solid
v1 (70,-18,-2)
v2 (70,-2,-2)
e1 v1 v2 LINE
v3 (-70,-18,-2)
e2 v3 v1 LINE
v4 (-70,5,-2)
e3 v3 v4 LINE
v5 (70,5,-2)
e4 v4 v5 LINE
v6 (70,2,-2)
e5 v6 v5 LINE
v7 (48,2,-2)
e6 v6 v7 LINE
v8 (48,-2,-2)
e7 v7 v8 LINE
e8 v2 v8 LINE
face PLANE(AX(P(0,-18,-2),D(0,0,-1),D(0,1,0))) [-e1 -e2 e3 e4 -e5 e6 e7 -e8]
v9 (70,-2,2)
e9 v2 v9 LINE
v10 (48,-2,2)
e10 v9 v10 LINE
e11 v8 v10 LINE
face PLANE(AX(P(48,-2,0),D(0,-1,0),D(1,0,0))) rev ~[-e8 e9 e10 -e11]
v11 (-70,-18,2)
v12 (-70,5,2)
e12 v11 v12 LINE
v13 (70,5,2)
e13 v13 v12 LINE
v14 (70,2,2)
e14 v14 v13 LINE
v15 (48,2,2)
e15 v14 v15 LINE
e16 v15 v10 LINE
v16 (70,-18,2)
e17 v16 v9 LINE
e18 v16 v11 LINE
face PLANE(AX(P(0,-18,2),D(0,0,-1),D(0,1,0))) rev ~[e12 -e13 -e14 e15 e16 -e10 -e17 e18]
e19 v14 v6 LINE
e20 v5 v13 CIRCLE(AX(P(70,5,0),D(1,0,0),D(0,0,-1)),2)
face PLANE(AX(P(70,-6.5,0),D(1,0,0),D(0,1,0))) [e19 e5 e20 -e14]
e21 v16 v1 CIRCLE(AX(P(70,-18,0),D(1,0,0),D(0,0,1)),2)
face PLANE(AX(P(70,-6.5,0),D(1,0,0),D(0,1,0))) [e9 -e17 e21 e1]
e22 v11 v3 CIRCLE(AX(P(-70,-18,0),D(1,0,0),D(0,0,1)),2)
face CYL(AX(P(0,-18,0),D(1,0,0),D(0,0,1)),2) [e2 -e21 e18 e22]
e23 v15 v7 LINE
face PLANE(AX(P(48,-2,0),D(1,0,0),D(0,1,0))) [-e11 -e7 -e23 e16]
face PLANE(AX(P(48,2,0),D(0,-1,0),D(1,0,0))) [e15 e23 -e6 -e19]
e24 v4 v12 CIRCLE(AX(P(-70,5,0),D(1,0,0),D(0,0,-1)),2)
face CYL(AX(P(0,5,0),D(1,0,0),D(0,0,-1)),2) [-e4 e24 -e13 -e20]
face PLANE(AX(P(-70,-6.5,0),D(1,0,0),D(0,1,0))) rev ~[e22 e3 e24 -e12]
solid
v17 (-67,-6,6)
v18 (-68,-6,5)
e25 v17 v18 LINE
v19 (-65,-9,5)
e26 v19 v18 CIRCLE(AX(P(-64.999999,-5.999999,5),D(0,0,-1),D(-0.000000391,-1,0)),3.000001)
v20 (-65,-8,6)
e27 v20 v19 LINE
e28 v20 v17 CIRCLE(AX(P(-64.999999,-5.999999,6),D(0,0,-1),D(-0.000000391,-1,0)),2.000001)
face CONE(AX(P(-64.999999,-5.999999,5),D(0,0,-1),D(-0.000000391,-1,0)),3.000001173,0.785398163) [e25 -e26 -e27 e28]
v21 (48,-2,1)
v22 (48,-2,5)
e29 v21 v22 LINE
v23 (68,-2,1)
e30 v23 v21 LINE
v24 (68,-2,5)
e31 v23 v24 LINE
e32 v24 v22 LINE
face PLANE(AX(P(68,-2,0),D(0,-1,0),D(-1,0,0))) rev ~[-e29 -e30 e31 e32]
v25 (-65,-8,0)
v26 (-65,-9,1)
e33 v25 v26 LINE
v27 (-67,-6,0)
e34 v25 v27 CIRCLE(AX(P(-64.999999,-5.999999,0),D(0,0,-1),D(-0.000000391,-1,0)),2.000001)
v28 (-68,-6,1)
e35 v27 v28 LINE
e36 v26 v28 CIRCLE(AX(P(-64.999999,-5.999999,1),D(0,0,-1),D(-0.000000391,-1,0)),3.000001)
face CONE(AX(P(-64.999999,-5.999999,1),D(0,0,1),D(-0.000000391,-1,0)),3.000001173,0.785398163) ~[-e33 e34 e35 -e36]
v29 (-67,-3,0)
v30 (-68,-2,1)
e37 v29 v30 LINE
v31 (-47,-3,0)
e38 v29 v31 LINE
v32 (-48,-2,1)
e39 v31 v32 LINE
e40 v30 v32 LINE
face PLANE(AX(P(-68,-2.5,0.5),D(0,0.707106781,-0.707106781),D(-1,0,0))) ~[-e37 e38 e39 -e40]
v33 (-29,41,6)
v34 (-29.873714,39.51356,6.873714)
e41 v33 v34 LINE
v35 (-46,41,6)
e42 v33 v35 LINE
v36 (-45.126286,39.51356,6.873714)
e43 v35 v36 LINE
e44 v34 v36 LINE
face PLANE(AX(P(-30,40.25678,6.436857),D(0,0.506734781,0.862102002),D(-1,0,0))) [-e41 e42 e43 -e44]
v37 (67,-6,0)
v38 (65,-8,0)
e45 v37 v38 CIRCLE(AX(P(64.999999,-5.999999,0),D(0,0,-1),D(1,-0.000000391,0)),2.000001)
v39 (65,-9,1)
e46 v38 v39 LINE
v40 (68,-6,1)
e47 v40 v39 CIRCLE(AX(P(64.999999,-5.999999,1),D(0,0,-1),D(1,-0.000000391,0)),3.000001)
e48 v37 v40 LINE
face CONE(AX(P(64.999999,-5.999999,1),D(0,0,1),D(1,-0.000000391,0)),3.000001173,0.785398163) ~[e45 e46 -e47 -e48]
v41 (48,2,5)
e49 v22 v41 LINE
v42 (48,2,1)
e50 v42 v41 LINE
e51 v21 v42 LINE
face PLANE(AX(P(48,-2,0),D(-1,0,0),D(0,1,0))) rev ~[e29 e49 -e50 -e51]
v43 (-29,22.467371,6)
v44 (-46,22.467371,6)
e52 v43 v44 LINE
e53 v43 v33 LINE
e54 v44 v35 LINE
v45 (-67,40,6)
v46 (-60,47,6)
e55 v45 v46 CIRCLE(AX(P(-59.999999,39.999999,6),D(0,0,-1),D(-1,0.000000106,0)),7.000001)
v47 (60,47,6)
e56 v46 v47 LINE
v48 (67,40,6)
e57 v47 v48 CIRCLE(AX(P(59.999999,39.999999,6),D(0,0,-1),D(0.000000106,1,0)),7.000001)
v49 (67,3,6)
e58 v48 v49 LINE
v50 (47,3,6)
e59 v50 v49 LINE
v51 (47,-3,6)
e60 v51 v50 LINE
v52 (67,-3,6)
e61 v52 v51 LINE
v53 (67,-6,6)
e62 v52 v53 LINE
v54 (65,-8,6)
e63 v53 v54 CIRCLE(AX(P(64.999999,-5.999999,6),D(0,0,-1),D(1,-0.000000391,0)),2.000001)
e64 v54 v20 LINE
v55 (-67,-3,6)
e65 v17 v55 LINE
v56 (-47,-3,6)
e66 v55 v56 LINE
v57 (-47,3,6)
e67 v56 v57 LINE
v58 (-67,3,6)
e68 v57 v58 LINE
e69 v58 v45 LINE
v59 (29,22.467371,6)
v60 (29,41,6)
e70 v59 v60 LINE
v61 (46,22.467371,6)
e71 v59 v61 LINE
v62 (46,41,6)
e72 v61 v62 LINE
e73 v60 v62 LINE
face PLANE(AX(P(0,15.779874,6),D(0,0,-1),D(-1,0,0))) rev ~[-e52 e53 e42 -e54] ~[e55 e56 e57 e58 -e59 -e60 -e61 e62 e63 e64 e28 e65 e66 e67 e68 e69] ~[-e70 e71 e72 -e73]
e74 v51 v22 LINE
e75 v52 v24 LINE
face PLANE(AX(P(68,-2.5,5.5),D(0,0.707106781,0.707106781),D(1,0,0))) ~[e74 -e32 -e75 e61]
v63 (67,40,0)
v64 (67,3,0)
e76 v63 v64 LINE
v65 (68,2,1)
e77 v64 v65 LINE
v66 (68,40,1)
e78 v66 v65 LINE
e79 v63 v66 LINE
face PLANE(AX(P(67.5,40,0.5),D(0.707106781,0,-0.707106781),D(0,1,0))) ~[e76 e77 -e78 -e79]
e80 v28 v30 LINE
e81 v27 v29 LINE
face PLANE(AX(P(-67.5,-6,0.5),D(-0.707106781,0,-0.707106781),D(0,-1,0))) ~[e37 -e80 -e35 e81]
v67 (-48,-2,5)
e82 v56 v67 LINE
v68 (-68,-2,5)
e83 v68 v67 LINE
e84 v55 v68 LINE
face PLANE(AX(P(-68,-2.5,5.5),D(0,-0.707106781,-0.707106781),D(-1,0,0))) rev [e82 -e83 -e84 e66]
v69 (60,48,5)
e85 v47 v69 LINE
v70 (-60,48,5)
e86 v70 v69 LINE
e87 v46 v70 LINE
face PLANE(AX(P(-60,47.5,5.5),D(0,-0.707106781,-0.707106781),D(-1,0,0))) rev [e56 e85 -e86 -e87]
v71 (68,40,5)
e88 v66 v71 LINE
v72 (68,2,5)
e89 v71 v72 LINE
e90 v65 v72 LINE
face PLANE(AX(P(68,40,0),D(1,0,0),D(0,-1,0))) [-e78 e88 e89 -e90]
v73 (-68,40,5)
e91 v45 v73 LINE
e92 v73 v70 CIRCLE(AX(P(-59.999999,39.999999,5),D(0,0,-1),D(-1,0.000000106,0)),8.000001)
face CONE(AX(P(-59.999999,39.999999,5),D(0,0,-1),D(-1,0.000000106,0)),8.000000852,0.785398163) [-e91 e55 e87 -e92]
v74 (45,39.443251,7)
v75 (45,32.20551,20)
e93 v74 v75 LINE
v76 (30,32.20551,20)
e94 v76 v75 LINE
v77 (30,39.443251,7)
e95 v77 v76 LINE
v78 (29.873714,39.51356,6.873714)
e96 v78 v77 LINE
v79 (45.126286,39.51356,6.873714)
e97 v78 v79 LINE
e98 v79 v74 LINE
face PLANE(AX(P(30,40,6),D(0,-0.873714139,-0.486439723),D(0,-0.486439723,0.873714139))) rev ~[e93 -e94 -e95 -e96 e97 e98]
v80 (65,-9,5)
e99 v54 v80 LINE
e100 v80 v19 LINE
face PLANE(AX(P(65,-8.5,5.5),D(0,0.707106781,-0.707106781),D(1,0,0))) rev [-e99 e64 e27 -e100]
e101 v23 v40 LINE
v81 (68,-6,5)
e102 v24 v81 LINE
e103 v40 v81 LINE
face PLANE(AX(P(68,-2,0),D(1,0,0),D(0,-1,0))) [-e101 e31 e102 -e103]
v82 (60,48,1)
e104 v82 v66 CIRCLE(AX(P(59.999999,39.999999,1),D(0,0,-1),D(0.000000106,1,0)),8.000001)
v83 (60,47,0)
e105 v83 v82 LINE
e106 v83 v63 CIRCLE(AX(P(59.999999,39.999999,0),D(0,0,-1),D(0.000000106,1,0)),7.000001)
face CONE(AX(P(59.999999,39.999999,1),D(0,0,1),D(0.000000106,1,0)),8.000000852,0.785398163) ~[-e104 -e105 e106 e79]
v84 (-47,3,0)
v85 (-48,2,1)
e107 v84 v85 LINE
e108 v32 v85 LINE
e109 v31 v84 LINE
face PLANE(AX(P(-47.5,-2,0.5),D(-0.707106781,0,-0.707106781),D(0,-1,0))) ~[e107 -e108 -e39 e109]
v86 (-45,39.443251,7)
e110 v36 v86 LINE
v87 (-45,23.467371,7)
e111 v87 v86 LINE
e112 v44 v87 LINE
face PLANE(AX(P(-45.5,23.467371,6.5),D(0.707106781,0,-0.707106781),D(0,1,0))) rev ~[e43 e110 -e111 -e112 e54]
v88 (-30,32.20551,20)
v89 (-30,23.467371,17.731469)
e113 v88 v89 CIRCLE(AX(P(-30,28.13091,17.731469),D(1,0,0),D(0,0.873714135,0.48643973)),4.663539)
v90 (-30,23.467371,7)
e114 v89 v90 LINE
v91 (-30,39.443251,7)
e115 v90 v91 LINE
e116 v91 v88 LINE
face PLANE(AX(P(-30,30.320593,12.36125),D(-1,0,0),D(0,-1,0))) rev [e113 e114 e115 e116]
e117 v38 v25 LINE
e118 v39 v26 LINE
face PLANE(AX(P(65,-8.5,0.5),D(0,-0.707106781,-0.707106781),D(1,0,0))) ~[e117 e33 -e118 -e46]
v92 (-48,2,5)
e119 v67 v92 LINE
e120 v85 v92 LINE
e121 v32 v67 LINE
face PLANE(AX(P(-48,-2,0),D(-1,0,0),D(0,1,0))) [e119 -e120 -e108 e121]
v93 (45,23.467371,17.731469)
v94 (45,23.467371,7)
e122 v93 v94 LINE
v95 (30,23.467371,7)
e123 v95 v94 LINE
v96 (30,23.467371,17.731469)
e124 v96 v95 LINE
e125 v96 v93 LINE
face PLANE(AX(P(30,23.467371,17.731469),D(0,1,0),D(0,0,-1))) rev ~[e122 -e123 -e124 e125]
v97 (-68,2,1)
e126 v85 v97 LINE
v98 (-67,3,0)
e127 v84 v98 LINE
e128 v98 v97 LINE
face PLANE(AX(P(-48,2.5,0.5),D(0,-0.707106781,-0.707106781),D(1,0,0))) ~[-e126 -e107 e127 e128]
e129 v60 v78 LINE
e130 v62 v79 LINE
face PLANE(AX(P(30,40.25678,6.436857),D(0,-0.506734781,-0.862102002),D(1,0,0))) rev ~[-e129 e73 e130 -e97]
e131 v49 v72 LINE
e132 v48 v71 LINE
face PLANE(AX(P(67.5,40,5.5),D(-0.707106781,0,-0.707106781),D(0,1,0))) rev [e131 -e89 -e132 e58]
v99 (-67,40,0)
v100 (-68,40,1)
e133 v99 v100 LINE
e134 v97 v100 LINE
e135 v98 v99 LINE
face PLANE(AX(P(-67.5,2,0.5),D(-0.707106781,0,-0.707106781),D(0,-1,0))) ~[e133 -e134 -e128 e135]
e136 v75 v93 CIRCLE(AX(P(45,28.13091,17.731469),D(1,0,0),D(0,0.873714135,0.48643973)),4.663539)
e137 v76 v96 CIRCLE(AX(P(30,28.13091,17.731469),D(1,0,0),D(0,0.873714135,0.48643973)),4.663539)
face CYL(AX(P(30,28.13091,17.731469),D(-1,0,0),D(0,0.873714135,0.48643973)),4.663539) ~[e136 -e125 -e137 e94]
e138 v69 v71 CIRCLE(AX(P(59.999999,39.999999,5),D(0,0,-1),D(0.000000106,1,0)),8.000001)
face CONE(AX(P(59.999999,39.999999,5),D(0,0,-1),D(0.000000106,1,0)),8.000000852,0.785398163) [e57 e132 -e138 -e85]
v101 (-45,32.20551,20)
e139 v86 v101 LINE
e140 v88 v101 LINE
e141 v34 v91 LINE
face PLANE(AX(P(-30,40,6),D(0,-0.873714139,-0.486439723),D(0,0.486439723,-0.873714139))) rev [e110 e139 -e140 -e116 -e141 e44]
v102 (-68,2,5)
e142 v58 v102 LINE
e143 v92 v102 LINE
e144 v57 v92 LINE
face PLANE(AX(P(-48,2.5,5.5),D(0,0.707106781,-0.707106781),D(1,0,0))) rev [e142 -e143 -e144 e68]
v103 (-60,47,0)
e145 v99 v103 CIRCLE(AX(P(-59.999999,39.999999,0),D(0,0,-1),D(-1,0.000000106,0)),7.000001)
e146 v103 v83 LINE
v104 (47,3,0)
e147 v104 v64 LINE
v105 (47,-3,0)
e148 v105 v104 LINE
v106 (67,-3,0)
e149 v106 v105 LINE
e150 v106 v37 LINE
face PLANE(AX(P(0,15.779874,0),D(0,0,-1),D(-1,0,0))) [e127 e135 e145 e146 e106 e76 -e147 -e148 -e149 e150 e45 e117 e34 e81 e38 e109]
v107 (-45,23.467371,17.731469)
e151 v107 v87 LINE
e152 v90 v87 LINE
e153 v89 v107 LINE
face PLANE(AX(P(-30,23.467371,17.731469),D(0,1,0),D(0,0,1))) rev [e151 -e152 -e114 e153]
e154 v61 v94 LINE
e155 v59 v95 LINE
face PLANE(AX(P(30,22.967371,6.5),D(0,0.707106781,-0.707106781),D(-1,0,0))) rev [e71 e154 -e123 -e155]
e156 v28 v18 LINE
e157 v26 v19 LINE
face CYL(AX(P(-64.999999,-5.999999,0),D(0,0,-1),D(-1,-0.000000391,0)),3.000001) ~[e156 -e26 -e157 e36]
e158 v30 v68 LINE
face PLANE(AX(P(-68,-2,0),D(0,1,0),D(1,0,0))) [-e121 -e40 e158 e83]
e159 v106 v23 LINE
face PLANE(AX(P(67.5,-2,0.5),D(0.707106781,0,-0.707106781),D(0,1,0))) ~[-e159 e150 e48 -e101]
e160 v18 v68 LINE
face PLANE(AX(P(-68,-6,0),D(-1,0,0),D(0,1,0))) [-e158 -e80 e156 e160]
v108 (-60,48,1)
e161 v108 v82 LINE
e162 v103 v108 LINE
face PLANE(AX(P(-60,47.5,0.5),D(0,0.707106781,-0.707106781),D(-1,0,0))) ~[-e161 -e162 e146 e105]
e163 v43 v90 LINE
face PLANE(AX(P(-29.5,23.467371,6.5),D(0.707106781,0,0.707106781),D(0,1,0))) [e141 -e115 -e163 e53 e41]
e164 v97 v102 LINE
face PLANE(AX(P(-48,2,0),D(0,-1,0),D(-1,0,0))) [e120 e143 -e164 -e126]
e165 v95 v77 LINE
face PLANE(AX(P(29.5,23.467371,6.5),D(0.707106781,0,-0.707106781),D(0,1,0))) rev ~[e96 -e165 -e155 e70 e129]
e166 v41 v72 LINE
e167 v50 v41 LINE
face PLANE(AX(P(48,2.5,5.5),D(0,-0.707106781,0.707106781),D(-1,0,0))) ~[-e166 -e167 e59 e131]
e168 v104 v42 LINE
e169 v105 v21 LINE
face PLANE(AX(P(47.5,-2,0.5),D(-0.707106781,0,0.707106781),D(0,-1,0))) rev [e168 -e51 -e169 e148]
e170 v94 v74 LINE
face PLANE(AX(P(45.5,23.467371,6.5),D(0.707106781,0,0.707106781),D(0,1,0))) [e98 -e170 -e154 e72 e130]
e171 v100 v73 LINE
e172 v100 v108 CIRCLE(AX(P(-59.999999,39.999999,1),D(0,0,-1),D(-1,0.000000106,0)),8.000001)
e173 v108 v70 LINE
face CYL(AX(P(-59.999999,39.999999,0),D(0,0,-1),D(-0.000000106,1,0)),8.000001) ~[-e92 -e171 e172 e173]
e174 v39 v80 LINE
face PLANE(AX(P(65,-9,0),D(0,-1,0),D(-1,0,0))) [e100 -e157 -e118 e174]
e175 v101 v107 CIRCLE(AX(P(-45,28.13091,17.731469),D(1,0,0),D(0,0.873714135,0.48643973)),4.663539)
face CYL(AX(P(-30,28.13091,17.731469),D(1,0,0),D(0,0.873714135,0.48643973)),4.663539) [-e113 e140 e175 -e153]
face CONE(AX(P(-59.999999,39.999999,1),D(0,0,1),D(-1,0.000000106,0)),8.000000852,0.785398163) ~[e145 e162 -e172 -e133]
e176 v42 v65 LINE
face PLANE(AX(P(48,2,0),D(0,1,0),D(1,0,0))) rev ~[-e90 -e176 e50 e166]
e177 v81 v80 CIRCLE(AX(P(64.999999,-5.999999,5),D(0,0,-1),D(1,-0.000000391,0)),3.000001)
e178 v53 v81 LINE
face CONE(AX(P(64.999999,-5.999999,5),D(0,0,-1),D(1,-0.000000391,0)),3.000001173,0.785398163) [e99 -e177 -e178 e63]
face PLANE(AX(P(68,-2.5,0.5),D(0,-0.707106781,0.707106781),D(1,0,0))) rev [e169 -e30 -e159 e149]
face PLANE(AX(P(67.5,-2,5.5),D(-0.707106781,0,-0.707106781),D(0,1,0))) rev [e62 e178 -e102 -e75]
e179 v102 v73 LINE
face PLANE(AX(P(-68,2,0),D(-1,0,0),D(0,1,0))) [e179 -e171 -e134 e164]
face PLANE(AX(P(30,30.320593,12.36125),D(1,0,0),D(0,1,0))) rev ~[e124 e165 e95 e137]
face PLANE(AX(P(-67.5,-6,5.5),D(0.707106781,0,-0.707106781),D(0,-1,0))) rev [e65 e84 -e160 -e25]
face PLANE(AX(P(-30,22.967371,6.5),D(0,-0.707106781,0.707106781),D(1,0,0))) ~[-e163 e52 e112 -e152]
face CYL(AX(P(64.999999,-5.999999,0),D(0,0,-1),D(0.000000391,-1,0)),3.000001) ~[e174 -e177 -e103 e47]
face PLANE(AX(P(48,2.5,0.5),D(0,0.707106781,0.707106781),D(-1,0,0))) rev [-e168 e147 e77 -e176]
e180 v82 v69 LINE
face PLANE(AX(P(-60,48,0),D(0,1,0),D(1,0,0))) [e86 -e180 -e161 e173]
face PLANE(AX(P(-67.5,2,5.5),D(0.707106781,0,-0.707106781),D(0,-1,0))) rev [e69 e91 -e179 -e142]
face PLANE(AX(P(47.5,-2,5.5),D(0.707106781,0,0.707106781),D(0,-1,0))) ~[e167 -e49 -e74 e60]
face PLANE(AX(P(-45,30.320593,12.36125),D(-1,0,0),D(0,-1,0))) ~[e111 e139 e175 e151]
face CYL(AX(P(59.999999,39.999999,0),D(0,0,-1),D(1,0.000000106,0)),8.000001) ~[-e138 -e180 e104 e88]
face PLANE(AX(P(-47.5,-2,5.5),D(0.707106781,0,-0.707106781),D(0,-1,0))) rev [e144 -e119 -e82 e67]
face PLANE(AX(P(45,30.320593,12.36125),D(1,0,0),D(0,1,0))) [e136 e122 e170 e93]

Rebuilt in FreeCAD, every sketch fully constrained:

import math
import FreeCAD as App
import Part
import Sketcher
from FreeCAD import Vector


def edges_at(feature, points):
    """Names of the edges that pass closest to the given points."""
    edges = feature.Shape.Edges
    near = lambda p: min(range(len(edges)), key=lambda i: edges[i].distToShape(Part.Vertex(*p))[0])
    return sorted({f"Edge{near(p) + 1}" for p in points})

doc = App.newDocument("Part")
body = doc.addObject("PartDesign::Body", "Body")

# Sketch on YZ plane
sketch1 = body.newObject("Sketcher::SketchObject", "Sketch")
sketch1.AttachmentSupport = (doc.getObject("YZ_Plane"), [""])
sketch1.MapMode = "FlatFace"
sketch1.addGeometry([
    Part.ArcOfCircle(Part.Circle(Vector(-18, 0, 0), Vector(0, 0, 1), 2), math.radians(90), math.radians(270)),
    Part.LineSegment(Vector(-18, -2, 0), Vector(5, -2, 0)),
    Part.ArcOfCircle(Part.Circle(Vector(5, 0, 0), Vector(0, 0, 1), 2), math.radians(-90), math.radians(90)),
    Part.LineSegment(Vector(5, 2, 0), Vector(-18, 2, 0)),
], False)
sketch1.addConstraint([
    Sketcher.Constraint("Tangent", 0, 2, 1, 1),
    Sketcher.Constraint("Tangent", 1, 2, 2, 1),
    Sketcher.Constraint("Tangent", 2, 2, 3, 1),
    Sketcher.Constraint("Tangent", 3, 2, 0, 1),
    Sketcher.Constraint("Horizontal", 1),
    Sketcher.Constraint("Horizontal", 3),
    Sketcher.Constraint("PointOnObject", 0, 3, -1),
    Sketcher.Constraint("Radius", 0, 2.0),
    Sketcher.Constraint("DistanceX", 1, 1, 1, 2, 23.0),
    Sketcher.Constraint("DistanceX", 0, 3, -1, 1, 18.0),
])
pad1 = body.newObject("PartDesign::Pad", "Pad")
pad1.Profile = sketch1
pad1.Length = 140
pad1.Midplane = True

# Sketch on XY plane
sketch2 = body.newObject("Sketcher::SketchObject", "Sketch001")
sketch2.AttachmentSupport = (doc.getObject("XY_Plane"), [""])
sketch2.MapMode = "FlatFace"
sketch2.addGeometry([
    Part.LineSegment(Vector(48, 2, 0), Vector(48, -2, 0)),
    Part.LineSegment(Vector(48, -2, 0), Vector(70, -2, 0)),
    Part.LineSegment(Vector(70, -2, 0), Vector(70, 2, 0)),
    Part.LineSegment(Vector(70, 2, 0), Vector(48, 2, 0)),
], False)
sketch2.addConstraint([
    Sketcher.Constraint("Coincident", 0, 2, 1, 1),
    Sketcher.Constraint("Coincident", 1, 2, 2, 1),
    Sketcher.Constraint("Coincident", 2, 2, 3, 1),
    Sketcher.Constraint("Coincident", 3, 2, 0, 1),
    Sketcher.Constraint("Vertical", 0),
    Sketcher.Constraint("Horizontal", 1),
    Sketcher.Constraint("Vertical", 2),
    Sketcher.Constraint("Horizontal", 3),
    Sketcher.Constraint("DistanceX", 1, 1, 1, 2, 22.0),
    Sketcher.Constraint("DistanceY", 0, 2, 0, 1, 4.0),
    Sketcher.Constraint("DistanceX", -1, 1, 0, 2, 48.0),
    Sketcher.Constraint("DistanceY", 0, 2, -1, 1, 2.0),
])
pocket1 = body.newObject("PartDesign::Pocket", "Pocket")
pocket1.Profile = sketch2
pocket1.Length = 8
pocket1.Midplane = True
body2 = doc.addObject("PartDesign::Body", "Body001")

# Sketch on XY plane
sketch3 = body2.newObject("Sketcher::SketchObject", "Sketch002")
sketch3.AttachmentSupport = (doc.getObject("XY_Plane001"), [""])
sketch3.MapMode = "FlatFace"
sketch3.addGeometry([
    Part.LineSegment(Vector(60, 48, 0), Vector(-60, 48, 0)),  # 0
    Part.ArcOfCircle(Part.Circle(Vector(-60, 40, 0), Vector(0, 0, 1), 8), math.radians(90), math.radians(180)),  # 1
    Part.LineSegment(Vector(-68, 40, 0), Vector(-68, 2, 0)),  # 2
    Part.LineSegment(Vector(-68, 2, 0), Vector(-48, 2, 0)),  # 3
    Part.LineSegment(Vector(-48, 2, 0), Vector(-48, -2, 0)),  # 4
    Part.LineSegment(Vector(-48, -2, 0), Vector(-68, -2, 0)),  # 5
    Part.LineSegment(Vector(-68, -2, 0), Vector(-68, -6, 0)),  # 6
    Part.ArcOfCircle(Part.Circle(Vector(-65, -6, 0), Vector(0, 0, 1), 3), math.radians(-180), math.radians(-90)),  # 7
    Part.LineSegment(Vector(-65, -9, 0), Vector(65, -9, 0)),  # 8
    Part.ArcOfCircle(Part.Circle(Vector(65, -6, 0), Vector(0, 0, 1), 3), math.radians(-90), math.radians(0)),  # 9
    Part.LineSegment(Vector(68, -6, 0), Vector(68, -2, 0)),  # 10
    Part.LineSegment(Vector(68, -2, 0), Vector(48, -2, 0)),  # 11
    Part.LineSegment(Vector(48, -2, 0), Vector(48, 2, 0)),  # 12
    Part.LineSegment(Vector(48, 2, 0), Vector(68, 2, 0)),  # 13
    Part.LineSegment(Vector(68, 2, 0), Vector(68, 40, 0)),  # 14
    Part.ArcOfCircle(Part.Circle(Vector(60, 40, 0), Vector(0, 0, 1), 8), math.radians(0), math.radians(90)),  # 15
], False)
sketch3.addConstraint([
    Sketcher.Constraint("Tangent", 0, 2, 1, 1),
    Sketcher.Constraint("Tangent", 1, 2, 2, 1),
    Sketcher.Constraint("Coincident", 2, 2, 3, 1),
    Sketcher.Constraint("Coincident", 3, 2, 4, 1),
    Sketcher.Constraint("Coincident", 4, 2, 5, 1),
    Sketcher.Constraint("Coincident", 5, 2, 6, 1),
    Sketcher.Constraint("Tangent", 6, 2, 7, 1),
    Sketcher.Constraint("Tangent", 7, 2, 8, 1),
    Sketcher.Constraint("Tangent", 8, 2, 9, 1),
    Sketcher.Constraint("Tangent", 9, 2, 10, 1),
    Sketcher.Constraint("Coincident", 10, 2, 11, 1),
    Sketcher.Constraint("Coincident", 11, 2, 12, 1),
    Sketcher.Constraint("Coincident", 12, 2, 13, 1),
    Sketcher.Constraint("Coincident", 13, 2, 14, 1),
    Sketcher.Constraint("Tangent", 14, 2, 15, 1),
    Sketcher.Constraint("Tangent", 15, 2, 0, 1),
    Sketcher.Constraint("Horizontal", 0),
    Sketcher.Constraint("Vertical", 2),
    Sketcher.Constraint("Horizontal", 3),
    Sketcher.Constraint("Vertical", 4),
    Sketcher.Constraint("Horizontal", 5),
    Sketcher.Constraint("Vertical", 6),
    Sketcher.Constraint("Horizontal", 8),
    Sketcher.Constraint("Vertical", 10),
    Sketcher.Constraint("Horizontal", 11),
    Sketcher.Constraint("Vertical", 12),
    Sketcher.Constraint("Horizontal", 13),
    Sketcher.Constraint("Vertical", 14),
    Sketcher.Constraint("Equal", 7, 9),
    Sketcher.Constraint("Equal", 1, 15),
    Sketcher.Constraint("Symmetric", 2, 2, 10, 2, -1, 1),
    Sketcher.Constraint("Symmetric", 4, 2, 12, 2, -1, 1),
    Sketcher.Constraint("Symmetric", 5, 2, 10, 2, -2),
    Sketcher.Constraint("Vertical", 10, 2, 13, 2),
    Sketcher.Constraint("Equal", 4, 6),
    Sketcher.Constraint("Radius", 1, 8.000001),
    Sketcher.Constraint("Radius", 7, 3.000001),
    Sketcher.Constraint("DistanceX", 0, 2, 0, 1, 120.0),
    Sketcher.Constraint("DistanceX", 3, 1, 3, 2, 20.0),
    Sketcher.Constraint("DistanceY", 2, 2, 2, 1, 38.0),
    Sketcher.Constraint("DistanceY", 4, 2, 4, 1, 4.0),
])
pad2 = body2.newObject("PartDesign::Pad", "Pad001")
pad2.Profile = sketch3
pad2.Length = 6

# Sketch on YZ plane
sketch4 = body2.newObject("Sketcher::SketchObject", "Sketch003")
sketch4.AttachmentSupport = (doc.getObject("YZ_Plane001"), [""])
sketch4.MapMode = "FlatFace"
sketch4.AttachmentOffset = App.Placement(Vector(0, 0, 30), App.Rotation())
sketch4.addGeometry([
    Part.ArcOfCircle(Part.Circle(Vector(28.1, 17.7, 0), Vector(0, 0, 1), 4.7), math.radians(29), math.radians(180)),
    Part.LineSegment(Vector(23.5, 17.7, 0), Vector(23.5, 6, 0)),
    Part.LineSegment(Vector(23.5, 6, 0), Vector(40, 6, 0)),
    Part.LineSegment(Vector(40, 6, 0), Vector(32.2, 20, 0)),
], False)
sketch4.addConstraint([
    Sketcher.Constraint("Tangent", 0, 2, 1, 1),
    Sketcher.Constraint("Coincident", 1, 2, 2, 1),
    Sketcher.Constraint("Coincident", 2, 2, 3, 1),
    Sketcher.Constraint("Tangent", 3, 2, 0, 1),
    Sketcher.Constraint("Vertical", 1),
    Sketcher.Constraint("Horizontal", 2),
    Sketcher.Constraint("DistanceY", -1, 1, 1, 2, 6.0),
    Sketcher.Constraint("DistanceX", -1, 1, 2, 2, 40.0),
    Sketcher.Constraint("DistanceY", -1, 1, 3, 2, 20.0),
    Sketcher.Constraint("Radius", 0, 4.663539),
    Sketcher.Constraint("DistanceX", 2, 1, 2, 2, 16.532629),
])
pad3 = body2.newObject("PartDesign::Pad", "Pad002")
pad3.Profile = sketch4
pad3.Length = 15
doc.recompute()

mirrored = body2.newObject("PartDesign::Mirrored", "Mirrored")
mirrored.Originals = [pad3]
mirrored.MirrorPlane = (doc.getObject("YZ_Plane001"), [""])
body2.Tip = mirrored
doc.recompute()

chamfer = body2.newObject("PartDesign::Chamfer", "Chamfer")
chamfer.Base = (mirrored, edges_at(mirrored, [
    (-68, -4, 6),
    (-67.121, -8.121, 6),
    (-58, -2, 6),
    (0, -9, 6),
    (-48, 0, 6),
    (67.121, -8.121, 6),
    (-58, 2, 6),
    (68, -4, 6),
    (-68, 21, 6),
    (58, -2, 6),
    (-65.657, 45.657, 6),
    (48, 0, 6),
    (0, 48, 6),
    (58, 2, 6),
    (65.657, 45.657, 6),
    (68, 21, 6),
    (37.5, 23.467, 6),
    (30, 31.734, 6),
    (45, 31.734, 6),
    (37.5, 40, 6),
    (-30, 31.734, 6),
    (-37.5, 40, 6),
    (-45, 31.734, 6),
    (-37.5, 23.467, 6),
    (-68, -4, 0),
    (-58, -2, 0),
    (-48, 0, 0),
    (-58, 2, 0),
    (-68, 21, 0),
    (-65.657, 45.657, 0),
    (0, 48, 0),
    (65.657, 45.657, 0),
    (68, 21, 0),
    (58, 2, 0),
    (48, 0, 0),
    (58, -2, 0),
    (68, -4, 0),
    (67.121, -8.121, 0),
    (0, -9, 0),
    (-67.121, -8.121, 0),
]))
chamfer.Size = 1

doc.recompute()
